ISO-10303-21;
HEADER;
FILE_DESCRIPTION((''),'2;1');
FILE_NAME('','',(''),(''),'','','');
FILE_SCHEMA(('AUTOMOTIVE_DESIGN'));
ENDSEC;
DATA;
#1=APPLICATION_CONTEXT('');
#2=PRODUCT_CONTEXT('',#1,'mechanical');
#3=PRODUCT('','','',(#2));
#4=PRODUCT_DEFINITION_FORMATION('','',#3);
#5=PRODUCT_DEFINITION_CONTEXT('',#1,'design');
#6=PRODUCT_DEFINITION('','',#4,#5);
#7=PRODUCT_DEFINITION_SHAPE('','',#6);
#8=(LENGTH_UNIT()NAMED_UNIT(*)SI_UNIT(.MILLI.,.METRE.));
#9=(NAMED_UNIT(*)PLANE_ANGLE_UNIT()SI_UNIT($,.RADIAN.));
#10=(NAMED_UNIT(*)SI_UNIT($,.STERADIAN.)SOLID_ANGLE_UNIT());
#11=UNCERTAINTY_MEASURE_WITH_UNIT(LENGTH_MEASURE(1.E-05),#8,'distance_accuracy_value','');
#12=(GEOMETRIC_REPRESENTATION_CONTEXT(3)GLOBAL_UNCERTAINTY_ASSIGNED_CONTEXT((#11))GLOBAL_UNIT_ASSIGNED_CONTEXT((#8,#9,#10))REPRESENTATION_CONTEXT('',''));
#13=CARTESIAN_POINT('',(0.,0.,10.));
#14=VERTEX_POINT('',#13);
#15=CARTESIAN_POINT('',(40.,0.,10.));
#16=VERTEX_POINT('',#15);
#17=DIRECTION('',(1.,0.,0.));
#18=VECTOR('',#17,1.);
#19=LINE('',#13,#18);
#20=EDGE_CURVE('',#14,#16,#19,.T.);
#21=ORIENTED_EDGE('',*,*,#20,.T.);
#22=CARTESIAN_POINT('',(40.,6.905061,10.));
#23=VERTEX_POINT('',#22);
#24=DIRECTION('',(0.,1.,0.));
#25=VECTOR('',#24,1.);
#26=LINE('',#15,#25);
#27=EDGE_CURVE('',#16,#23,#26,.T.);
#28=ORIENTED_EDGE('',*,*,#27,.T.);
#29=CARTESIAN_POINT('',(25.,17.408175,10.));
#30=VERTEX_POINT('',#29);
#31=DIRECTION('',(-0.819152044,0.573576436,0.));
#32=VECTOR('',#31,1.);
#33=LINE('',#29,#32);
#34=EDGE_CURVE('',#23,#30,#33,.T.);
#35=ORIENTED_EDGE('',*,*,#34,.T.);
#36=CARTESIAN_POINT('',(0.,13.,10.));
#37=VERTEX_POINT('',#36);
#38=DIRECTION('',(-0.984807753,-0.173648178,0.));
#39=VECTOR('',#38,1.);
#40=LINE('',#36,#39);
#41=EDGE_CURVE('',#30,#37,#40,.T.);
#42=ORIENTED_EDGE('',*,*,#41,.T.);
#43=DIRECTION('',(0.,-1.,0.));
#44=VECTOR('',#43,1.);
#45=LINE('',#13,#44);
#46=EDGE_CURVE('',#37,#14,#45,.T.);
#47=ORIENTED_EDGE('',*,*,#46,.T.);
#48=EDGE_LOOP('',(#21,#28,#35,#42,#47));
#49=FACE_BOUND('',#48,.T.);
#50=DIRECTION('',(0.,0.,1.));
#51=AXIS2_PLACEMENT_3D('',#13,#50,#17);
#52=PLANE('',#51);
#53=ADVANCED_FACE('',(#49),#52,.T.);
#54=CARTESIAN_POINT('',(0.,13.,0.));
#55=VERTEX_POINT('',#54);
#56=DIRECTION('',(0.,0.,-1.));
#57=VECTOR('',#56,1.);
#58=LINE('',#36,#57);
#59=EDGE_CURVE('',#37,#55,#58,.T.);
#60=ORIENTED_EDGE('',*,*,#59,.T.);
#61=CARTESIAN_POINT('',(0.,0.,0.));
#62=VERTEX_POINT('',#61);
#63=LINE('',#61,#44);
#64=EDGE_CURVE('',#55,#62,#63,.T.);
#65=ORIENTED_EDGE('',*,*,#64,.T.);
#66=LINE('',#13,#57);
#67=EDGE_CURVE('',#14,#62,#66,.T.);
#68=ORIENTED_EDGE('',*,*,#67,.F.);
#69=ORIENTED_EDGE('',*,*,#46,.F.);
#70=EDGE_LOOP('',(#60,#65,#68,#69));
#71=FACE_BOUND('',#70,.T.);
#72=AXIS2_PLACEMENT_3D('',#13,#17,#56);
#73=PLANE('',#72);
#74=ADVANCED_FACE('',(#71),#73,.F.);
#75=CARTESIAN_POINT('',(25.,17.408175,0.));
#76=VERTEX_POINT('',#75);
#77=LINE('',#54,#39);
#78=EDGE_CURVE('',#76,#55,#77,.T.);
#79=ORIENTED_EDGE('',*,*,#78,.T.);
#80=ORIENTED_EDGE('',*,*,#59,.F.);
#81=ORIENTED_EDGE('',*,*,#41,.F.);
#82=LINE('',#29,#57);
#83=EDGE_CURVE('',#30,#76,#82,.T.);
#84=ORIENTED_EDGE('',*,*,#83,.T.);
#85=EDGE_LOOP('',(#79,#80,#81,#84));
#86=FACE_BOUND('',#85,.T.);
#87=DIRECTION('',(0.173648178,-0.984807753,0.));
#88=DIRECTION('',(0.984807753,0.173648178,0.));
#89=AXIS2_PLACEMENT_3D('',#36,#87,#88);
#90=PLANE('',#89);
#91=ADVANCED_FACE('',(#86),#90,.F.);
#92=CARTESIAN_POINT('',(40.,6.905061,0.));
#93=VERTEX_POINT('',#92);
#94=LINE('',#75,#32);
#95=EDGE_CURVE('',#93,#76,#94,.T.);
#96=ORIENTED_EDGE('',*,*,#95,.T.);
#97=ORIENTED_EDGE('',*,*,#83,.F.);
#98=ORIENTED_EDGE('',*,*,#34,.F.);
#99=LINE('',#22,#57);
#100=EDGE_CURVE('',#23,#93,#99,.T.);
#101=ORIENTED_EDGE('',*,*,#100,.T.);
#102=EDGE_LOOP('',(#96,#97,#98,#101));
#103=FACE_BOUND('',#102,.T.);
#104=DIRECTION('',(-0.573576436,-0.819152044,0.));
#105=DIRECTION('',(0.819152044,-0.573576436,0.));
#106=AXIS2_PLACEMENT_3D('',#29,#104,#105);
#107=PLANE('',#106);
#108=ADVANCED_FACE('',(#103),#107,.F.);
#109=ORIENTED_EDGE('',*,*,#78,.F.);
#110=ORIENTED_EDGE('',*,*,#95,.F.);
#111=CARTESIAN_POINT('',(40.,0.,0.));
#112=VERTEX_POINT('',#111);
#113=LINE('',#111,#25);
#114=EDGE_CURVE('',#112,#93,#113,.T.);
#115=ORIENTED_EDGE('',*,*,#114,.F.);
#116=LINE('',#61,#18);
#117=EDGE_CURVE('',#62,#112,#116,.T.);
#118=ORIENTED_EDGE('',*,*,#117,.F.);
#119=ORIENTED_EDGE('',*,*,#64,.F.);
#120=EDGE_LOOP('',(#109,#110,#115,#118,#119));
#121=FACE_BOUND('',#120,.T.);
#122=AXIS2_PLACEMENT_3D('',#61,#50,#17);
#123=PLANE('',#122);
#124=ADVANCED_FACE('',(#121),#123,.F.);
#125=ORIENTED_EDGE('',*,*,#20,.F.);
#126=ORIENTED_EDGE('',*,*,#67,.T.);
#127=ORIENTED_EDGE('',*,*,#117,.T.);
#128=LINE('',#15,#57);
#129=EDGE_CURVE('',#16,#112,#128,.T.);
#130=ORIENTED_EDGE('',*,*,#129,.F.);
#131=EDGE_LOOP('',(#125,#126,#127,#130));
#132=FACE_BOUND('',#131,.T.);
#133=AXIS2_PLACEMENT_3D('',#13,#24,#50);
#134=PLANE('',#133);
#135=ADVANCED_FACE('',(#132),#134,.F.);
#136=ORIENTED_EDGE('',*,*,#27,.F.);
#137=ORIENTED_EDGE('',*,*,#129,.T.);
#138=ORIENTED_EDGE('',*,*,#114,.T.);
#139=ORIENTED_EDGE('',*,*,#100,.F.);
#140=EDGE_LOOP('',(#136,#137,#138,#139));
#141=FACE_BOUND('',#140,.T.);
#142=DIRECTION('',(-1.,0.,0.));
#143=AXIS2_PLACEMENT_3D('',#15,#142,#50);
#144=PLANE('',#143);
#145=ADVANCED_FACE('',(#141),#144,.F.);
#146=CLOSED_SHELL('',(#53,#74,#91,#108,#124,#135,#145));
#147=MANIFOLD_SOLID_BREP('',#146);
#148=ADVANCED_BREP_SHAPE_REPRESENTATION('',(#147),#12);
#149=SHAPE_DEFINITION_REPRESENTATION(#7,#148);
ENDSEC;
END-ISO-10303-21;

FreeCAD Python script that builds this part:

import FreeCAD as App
import Part
import Sketcher

V = App.Vector
Q = App.Units.Quantity


def add_polygon(sketch, points):
    """Adds a closed chain of lines whose ends are joined by coincident constraints."""
    first, n = sketch.GeometryCount, len(points)
    for a, b in zip(points, points[1:] + points[:1]):
        sketch.addGeometry(Part.LineSegment(App.Vector(*a, 0), App.Vector(*b, 0)), False)
    for i in range(n):
        sketch.addConstraint(Sketcher.Constraint("Coincident", first + i, 2, first + (i + 1) % n, 1))

doc = App.newDocument("Part")
body = doc.addObject("PartDesign::Body", "Body")

# Sketch on XY plane
sketch1 = body.newObject("Sketcher::SketchObject", "Sketch")
sketch1.AttachmentSupport = (doc.getObject("XY_Plane"), [""])
sketch1.MapMode = "FlatFace"
add_polygon(sketch1, [(0, 13), (0, 0), (40, 0), (40, 7), (25, 17)])  # lines 0-4
sketch1.addConstraint([
    Sketcher.Constraint("Vertical", 0),
    Sketcher.Constraint("Horizontal", 1),
    Sketcher.Constraint("Vertical", 2),
    Sketcher.Constraint("Coincident", 0, 2, -1, 1),
    Sketcher.Constraint("DistanceX", 1, 1, 1, 2, Q("40 mm")),
    Sketcher.Constraint("DistanceY", 0, 2, 0, 1, Q("13 mm")),
    Sketcher.Constraint("Angle", 3, Q("145 deg")),
    Sketcher.Constraint("Angle", 4, Q("-170 deg")),
    Sketcher.Constraint("DistanceX", -1, 1, 3, 2, Q("25 mm")),
])
pad1 = body.newObject("PartDesign::Pad", "Pad")
pad1.Profile = sketch1
pad1.Length = 10

doc.recompute()
